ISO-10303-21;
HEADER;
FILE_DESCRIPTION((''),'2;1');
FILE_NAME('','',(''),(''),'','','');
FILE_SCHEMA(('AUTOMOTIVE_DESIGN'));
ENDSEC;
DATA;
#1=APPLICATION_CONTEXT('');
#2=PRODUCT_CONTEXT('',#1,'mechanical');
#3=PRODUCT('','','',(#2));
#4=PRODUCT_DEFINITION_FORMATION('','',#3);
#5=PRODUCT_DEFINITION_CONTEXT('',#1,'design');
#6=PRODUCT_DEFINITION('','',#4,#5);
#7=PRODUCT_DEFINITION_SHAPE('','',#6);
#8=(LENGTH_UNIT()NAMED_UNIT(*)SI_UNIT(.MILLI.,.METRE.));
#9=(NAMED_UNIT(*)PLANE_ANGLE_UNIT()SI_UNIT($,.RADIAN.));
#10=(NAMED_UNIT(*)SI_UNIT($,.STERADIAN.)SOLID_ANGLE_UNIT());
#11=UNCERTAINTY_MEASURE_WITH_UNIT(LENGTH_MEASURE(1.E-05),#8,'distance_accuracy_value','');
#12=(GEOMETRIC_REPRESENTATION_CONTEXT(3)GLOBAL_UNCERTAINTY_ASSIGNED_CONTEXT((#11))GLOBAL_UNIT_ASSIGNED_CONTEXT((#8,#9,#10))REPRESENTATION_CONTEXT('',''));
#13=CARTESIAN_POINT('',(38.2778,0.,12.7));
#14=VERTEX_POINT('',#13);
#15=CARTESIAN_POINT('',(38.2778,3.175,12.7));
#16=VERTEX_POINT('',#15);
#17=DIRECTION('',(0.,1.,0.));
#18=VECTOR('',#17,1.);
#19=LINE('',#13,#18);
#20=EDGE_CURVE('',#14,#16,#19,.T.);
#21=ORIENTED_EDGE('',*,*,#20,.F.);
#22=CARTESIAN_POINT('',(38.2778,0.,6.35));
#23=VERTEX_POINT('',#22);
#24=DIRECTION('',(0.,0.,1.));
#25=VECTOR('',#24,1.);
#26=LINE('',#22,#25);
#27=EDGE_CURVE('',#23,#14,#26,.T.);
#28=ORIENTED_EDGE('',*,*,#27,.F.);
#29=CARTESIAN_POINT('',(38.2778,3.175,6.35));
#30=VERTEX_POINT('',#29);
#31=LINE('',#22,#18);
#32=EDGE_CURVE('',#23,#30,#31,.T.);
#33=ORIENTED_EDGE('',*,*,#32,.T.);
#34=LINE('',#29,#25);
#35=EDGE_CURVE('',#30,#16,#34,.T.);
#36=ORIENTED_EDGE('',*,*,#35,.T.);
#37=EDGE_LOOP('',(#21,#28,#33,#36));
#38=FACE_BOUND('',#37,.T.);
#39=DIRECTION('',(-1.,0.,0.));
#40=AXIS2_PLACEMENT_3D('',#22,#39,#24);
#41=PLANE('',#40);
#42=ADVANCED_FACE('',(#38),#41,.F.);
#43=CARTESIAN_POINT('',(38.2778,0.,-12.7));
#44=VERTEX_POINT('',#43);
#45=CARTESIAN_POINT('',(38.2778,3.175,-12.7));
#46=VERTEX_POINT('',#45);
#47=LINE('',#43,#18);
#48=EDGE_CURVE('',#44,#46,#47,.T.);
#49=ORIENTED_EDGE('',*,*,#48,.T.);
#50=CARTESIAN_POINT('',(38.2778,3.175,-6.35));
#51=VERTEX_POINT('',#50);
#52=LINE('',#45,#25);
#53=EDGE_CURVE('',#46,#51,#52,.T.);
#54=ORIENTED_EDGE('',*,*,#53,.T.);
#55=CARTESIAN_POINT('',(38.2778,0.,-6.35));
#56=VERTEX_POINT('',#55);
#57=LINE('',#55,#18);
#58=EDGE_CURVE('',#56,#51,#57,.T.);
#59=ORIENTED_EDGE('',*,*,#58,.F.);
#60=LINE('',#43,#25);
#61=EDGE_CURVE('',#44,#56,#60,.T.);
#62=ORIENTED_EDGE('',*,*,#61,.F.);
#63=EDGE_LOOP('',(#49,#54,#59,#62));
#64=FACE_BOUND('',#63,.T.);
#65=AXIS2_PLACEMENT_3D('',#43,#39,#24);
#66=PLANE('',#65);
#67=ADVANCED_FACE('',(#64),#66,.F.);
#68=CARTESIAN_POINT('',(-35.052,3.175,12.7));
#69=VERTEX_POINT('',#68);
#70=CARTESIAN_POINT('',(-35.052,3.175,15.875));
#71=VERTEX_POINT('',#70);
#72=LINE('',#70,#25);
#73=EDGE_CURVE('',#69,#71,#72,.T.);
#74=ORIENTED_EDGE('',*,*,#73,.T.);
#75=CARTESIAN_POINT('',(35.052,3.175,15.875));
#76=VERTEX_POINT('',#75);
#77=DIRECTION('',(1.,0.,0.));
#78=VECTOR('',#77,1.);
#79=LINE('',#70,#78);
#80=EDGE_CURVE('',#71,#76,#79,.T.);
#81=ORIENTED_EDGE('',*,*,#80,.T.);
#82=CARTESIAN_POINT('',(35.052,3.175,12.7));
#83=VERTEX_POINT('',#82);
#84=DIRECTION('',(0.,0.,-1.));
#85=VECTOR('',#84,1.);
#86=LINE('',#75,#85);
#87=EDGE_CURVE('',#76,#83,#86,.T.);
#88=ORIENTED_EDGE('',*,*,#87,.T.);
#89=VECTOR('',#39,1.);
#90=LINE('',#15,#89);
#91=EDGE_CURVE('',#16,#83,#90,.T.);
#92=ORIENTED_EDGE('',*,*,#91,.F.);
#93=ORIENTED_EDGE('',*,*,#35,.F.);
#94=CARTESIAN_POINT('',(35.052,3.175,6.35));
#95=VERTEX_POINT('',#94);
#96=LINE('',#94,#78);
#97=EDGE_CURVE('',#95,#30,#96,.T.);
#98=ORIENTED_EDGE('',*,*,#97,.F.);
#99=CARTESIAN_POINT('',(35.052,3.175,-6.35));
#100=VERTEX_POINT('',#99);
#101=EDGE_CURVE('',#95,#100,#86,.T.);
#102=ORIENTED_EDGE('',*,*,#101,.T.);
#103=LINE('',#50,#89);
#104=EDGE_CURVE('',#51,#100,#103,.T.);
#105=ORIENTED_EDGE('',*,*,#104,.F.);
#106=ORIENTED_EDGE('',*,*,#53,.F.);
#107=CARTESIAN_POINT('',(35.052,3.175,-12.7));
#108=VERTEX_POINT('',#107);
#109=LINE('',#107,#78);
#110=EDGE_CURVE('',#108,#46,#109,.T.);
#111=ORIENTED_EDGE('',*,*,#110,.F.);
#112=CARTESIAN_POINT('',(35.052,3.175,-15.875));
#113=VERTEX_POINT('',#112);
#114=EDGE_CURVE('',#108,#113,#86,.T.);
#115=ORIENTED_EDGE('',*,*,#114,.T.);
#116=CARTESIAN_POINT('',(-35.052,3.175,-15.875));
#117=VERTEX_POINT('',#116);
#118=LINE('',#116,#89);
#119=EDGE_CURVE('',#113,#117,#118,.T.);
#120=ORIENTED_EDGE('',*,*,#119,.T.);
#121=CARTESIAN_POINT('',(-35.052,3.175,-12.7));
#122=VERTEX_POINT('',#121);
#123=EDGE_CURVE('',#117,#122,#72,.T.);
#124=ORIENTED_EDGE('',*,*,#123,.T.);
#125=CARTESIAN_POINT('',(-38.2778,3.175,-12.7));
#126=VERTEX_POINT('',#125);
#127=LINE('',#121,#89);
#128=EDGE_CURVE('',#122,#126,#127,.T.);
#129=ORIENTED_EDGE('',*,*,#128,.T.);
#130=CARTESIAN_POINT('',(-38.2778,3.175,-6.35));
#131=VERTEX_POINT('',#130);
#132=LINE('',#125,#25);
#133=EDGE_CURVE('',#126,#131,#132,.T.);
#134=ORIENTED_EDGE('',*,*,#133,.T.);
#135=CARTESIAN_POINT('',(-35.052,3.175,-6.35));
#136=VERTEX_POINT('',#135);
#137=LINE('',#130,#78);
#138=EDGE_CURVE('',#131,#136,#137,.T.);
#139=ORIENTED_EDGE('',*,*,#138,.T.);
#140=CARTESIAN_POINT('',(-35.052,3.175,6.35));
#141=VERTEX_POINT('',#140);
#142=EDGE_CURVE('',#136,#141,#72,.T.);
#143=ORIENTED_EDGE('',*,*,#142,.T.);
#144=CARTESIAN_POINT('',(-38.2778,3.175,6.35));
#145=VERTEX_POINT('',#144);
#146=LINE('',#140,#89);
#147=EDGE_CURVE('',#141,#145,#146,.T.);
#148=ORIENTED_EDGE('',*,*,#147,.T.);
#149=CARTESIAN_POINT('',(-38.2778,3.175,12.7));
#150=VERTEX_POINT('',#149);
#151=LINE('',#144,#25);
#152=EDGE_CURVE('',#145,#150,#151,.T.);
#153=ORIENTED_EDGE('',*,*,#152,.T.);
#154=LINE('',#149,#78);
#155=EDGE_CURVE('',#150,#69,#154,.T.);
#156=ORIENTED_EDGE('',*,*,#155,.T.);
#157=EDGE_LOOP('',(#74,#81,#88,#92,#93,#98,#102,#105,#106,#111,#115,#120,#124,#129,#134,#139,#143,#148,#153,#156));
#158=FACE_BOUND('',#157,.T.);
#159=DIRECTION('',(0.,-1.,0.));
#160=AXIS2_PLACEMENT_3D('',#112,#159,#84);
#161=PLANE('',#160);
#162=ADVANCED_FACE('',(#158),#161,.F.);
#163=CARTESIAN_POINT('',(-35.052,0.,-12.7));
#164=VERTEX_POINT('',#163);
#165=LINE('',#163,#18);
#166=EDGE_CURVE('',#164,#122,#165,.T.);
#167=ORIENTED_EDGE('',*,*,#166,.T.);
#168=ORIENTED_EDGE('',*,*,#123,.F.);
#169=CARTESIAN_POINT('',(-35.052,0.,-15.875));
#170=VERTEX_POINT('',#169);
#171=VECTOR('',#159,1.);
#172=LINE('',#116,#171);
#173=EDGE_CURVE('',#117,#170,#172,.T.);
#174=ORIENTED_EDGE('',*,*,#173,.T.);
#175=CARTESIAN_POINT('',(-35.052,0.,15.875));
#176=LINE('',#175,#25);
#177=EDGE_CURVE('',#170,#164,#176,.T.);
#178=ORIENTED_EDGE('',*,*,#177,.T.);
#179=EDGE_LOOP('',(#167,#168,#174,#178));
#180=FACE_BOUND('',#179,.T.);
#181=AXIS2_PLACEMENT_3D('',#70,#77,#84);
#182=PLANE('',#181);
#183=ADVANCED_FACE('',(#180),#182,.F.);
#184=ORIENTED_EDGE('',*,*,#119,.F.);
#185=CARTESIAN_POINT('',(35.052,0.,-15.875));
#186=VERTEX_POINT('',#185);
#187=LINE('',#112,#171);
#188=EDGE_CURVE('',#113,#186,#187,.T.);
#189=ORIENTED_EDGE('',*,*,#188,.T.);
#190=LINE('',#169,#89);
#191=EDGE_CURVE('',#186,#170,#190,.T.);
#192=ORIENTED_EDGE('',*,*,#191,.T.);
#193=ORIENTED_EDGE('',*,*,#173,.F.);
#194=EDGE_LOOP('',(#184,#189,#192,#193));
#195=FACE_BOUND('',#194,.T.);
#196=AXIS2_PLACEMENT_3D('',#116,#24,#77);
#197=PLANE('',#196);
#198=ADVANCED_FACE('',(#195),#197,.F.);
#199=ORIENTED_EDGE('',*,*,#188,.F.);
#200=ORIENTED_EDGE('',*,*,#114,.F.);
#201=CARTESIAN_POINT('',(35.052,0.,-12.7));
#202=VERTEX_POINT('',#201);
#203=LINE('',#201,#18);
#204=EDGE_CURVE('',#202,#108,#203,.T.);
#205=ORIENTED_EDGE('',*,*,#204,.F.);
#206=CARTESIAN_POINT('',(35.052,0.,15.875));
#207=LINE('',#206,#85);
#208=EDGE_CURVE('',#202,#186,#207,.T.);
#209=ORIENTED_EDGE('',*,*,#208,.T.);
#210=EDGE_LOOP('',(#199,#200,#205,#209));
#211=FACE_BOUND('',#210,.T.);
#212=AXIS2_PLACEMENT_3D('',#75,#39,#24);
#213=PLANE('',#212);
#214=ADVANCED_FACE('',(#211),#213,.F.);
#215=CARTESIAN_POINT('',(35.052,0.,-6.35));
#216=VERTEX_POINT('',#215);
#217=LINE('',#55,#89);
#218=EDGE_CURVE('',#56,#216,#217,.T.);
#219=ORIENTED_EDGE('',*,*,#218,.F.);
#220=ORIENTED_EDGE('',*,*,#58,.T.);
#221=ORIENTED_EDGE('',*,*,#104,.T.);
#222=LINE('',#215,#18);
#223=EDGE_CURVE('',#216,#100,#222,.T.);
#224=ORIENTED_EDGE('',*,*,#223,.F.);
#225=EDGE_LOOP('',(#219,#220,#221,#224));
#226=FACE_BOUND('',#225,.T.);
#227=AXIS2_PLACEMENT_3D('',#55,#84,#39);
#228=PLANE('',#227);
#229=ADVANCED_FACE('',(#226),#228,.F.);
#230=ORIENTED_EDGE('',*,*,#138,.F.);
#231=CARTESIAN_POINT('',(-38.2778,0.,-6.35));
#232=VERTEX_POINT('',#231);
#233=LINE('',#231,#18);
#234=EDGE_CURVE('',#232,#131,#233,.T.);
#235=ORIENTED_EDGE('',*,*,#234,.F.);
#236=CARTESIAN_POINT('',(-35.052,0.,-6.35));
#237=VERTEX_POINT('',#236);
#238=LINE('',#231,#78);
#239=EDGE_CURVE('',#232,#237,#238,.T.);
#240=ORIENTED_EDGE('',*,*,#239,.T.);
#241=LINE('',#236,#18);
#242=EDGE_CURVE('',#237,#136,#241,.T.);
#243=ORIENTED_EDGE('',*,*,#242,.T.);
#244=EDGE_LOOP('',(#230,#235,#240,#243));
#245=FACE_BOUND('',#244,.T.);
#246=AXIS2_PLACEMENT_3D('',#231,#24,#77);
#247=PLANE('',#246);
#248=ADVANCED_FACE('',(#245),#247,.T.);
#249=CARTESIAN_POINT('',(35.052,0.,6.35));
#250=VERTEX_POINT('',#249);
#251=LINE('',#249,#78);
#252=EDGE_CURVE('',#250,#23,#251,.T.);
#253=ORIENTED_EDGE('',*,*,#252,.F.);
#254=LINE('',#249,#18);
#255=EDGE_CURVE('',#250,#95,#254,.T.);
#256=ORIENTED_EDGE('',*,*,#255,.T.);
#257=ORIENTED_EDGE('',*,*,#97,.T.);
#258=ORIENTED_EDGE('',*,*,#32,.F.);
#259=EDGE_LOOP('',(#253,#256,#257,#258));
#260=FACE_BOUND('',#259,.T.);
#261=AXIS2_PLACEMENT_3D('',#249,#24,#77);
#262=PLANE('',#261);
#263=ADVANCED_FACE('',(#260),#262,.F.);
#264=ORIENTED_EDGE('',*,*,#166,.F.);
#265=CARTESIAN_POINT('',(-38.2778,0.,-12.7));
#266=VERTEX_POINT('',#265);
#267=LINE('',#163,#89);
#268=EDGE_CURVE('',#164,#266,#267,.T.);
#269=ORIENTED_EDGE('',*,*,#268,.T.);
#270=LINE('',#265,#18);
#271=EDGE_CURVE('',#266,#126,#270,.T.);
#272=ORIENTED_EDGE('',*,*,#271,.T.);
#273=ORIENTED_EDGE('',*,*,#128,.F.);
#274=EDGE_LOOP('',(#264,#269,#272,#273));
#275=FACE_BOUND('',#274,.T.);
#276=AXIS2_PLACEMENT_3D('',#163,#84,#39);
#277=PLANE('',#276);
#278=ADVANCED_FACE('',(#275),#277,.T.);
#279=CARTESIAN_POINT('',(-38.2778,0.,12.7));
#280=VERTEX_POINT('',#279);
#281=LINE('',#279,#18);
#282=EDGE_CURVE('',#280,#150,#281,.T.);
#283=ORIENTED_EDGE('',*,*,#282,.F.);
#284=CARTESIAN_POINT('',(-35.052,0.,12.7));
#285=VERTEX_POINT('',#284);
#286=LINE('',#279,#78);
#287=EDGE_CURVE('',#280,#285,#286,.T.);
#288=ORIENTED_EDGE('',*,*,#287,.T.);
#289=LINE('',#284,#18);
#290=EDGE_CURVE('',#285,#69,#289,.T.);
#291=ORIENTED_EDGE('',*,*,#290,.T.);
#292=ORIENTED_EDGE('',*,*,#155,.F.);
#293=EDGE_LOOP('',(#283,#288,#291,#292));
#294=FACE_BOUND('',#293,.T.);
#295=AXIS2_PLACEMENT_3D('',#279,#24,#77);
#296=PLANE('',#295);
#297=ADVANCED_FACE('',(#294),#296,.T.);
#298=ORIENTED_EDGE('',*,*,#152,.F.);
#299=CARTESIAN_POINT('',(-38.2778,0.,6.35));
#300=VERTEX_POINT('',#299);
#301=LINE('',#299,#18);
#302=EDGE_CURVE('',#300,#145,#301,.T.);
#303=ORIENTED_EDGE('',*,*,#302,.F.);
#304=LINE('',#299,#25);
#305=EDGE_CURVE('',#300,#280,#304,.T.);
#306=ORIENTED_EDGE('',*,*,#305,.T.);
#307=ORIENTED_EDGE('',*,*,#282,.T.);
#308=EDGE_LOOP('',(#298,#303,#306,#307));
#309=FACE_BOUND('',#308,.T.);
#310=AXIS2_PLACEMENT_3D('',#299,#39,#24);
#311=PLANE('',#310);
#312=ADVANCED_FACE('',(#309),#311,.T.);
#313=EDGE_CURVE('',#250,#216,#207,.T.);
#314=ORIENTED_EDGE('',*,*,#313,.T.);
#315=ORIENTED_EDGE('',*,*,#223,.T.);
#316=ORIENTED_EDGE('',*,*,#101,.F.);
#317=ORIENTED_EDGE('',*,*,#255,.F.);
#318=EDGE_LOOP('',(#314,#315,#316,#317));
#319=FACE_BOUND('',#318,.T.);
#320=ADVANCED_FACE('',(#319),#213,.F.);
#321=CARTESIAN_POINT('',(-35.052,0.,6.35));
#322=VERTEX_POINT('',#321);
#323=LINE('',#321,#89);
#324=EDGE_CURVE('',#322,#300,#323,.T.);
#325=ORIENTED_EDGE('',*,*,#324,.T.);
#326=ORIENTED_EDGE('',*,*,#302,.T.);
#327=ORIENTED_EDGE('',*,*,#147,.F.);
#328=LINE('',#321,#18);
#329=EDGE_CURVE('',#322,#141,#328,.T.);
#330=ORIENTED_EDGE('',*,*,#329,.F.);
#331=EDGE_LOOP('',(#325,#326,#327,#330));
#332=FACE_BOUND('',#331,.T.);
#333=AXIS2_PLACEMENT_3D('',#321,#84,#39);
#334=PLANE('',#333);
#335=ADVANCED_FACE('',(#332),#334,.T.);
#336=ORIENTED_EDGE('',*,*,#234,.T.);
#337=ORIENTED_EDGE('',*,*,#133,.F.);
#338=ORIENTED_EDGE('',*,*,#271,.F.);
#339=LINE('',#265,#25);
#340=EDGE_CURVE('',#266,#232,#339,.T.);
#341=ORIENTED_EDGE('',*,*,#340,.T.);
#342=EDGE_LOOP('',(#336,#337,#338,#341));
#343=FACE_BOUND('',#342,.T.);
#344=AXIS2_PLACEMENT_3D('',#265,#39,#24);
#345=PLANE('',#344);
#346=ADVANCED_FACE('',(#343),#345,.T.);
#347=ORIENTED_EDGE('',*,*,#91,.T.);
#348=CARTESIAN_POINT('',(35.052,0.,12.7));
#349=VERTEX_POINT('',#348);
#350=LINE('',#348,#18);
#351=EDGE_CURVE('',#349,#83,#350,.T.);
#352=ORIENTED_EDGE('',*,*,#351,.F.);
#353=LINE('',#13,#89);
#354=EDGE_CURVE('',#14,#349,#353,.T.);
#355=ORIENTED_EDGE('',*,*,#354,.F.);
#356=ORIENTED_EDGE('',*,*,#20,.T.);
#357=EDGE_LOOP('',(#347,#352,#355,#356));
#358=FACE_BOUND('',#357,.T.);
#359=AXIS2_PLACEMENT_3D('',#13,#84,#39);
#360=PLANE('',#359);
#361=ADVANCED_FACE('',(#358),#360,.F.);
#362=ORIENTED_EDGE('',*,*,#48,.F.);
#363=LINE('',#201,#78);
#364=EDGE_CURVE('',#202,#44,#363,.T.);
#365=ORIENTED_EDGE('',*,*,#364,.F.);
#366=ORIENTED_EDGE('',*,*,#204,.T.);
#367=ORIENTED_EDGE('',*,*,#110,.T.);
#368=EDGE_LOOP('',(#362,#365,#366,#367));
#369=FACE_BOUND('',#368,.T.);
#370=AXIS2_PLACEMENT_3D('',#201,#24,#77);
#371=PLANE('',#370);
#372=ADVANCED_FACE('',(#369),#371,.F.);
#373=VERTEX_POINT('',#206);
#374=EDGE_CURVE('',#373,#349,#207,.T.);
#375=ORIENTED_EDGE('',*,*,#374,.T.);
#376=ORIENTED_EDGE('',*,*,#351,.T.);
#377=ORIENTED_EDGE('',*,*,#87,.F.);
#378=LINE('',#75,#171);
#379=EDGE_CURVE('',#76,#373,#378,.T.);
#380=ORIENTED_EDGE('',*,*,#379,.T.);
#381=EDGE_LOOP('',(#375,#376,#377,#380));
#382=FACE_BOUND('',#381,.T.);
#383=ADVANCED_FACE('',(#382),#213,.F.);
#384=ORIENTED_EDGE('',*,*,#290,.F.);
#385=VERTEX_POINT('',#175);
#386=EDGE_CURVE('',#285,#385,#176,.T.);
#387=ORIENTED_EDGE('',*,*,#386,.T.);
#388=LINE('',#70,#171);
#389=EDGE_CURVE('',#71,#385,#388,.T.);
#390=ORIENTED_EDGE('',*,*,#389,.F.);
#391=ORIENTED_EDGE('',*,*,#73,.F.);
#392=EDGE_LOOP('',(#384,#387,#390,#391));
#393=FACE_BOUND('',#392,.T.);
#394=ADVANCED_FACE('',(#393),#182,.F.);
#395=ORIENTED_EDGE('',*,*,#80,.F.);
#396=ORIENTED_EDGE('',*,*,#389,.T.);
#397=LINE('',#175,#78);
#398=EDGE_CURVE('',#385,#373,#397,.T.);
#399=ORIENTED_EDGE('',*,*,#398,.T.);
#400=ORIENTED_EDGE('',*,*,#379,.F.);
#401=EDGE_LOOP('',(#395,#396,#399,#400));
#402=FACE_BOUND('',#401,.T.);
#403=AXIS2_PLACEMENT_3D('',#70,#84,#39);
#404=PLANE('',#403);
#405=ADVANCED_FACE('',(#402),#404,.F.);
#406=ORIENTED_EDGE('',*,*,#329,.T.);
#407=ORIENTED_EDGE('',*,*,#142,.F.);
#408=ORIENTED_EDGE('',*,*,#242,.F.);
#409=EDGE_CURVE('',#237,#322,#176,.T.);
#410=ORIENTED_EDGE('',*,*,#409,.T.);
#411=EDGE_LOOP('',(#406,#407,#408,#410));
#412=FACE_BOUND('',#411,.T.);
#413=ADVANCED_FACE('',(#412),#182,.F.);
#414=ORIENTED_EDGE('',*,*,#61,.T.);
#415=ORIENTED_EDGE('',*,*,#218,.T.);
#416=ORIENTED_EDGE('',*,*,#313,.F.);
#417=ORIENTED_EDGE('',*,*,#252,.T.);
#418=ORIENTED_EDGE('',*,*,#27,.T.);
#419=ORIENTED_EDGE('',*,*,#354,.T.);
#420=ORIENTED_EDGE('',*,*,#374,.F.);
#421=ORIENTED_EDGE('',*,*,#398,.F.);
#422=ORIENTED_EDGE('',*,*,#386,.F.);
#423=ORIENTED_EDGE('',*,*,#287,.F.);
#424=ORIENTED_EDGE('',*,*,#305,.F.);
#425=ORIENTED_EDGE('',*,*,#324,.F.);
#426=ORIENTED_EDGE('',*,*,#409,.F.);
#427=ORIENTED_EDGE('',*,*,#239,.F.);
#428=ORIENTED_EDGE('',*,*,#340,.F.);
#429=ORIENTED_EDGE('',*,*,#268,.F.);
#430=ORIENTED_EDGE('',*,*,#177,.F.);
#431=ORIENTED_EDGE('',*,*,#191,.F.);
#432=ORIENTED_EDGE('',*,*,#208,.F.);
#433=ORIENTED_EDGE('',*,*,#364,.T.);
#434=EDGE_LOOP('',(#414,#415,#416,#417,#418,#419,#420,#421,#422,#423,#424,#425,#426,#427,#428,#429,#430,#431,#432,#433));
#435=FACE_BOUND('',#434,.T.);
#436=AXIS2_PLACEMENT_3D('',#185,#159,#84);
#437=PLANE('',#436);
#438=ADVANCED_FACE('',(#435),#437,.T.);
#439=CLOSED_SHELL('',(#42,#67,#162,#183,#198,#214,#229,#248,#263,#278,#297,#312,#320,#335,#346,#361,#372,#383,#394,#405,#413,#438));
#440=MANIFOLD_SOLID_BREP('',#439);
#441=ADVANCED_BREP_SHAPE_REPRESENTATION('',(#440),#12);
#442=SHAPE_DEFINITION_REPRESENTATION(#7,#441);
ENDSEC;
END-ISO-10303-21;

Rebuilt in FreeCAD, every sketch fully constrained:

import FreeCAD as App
import Part
import Sketcher

V = App.Vector
Q = App.Units.Quantity

doc = App.newDocument("Part")
body = doc.addObject("PartDesign::Body", "Body")

# Sketch on XZ plane
sketch1 = body.newObject("Sketcher::SketchObject", "Sketch")
sketch1.AttachmentSupport = (doc.getObject("XZ_Plane"), [""])
sketch1.MapMode = "FlatFace"
sketch1.addGeometry([
    Part.LineSegment(V(-35, -16, 0), V(-35, 16, 0)),
    Part.LineSegment(V(-35, 16, 0), V(35, 16, 0)),
    Part.LineSegment(V(35, 16, 0), V(35, -16, 0)),
    Part.LineSegment(V(35, -16, 0), V(-35, -16, 0)),
], False)
sketch1.addConstraint([
    Sketcher.Constraint("Coincident", 0, 2, 1, 1),
    Sketcher.Constraint("Coincident", 1, 2, 2, 1),
    Sketcher.Constraint("Coincident", 2, 2, 3, 1),
    Sketcher.Constraint("Coincident", 3, 2, 0, 1),
    Sketcher.Constraint("Vertical", 0),
    Sketcher.Constraint("Horizontal", 1),
    Sketcher.Constraint("Vertical", 2),
    Sketcher.Constraint("Horizontal", 3),
    Sketcher.Constraint("Symmetric", 0, 2, 2, 2, -1, 1),
    Sketcher.Constraint("DistanceX", 1, 1, 1, 2, Q("2.76 in")),
    Sketcher.Constraint("DistanceY", 0, 1, 0, 2, Q("1.25 in")),
])
pad1 = body.newObject("PartDesign::Pad", "Pad")
pad1.Profile = sketch1
pad1.Length = Q("0.125 in")
pad1.Reversed = True

# Sketch on XZ plane
sketch2 = body.newObject("Sketcher::SketchObject", "Sketch001")
sketch2.AttachmentSupport = (doc.getObject("XZ_Plane"), [""])
sketch2.MapMode = "FlatFace"
sketch2.AttachmentOffset = App.Placement(V(0, 0, -0.125 * 25.4), App.Rotation())
sketch2.addGeometry([
    Part.LineSegment(V(-38.3, -12.7, 0), V(-38.3, -6.3, 0)),  # 0
    Part.LineSegment(V(-38.3, -6.3, 0), V(-35.1, -6.3, 0)),  # 1
    Part.LineSegment(V(-35.1, -6.3, 0), V(-35.1, -12.7, 0)),  # 2
    Part.LineSegment(V(-35.1, -12.7, 0), V(-38.3, -12.7, 0)),  # 3
    Part.LineSegment(V(-38.3, 6.3, 0), V(-38.3, 12.7, 0)),  # 4
    Part.LineSegment(V(-38.3, 12.7, 0), V(-35.1, 12.7, 0)),  # 5
    Part.LineSegment(V(-35.1, 12.7, 0), V(-35.1, 6.3, 0)),  # 6
    Part.LineSegment(V(-35.1, 6.3, 0), V(-38.3, 6.3, 0)),  # 7
], False)
sketch2.addConstraint([
    Sketcher.Constraint("Coincident", 0, 2, 1, 1),
    Sketcher.Constraint("Coincident", 1, 2, 2, 1),
    Sketcher.Constraint("Coincident", 2, 2, 3, 1),
    Sketcher.Constraint("Coincident", 3, 2, 0, 1),
    Sketcher.Constraint("Coincident", 4, 2, 5, 1),
    Sketcher.Constraint("Coincident", 5, 2, 6, 1),
    Sketcher.Constraint("Coincident", 6, 2, 7, 1),
    Sketcher.Constraint("Coincident", 7, 2, 4, 1),
    Sketcher.Constraint("Vertical", 0),
    Sketcher.Constraint("Horizontal", 1),
    Sketcher.Constraint("Vertical", 2),
    Sketcher.Constraint("Horizontal", 3),
    Sketcher.Constraint("Vertical", 4),
    Sketcher.Constraint("Horizontal", 5),
    Sketcher.Constraint("Vertical", 6),
    Sketcher.Constraint("Horizontal", 7),
    Sketcher.Constraint("Symmetric", 3, 2, 4, 2, -1),
    Sketcher.Constraint("Symmetric", 1, 2, 6, 2, -1),
    Sketcher.Constraint("DistanceY", 3, 2, 4, 2, Q("1 in")),
    Sketcher.Constraint("DistanceY", 0, 1, 0, 2, Q("0.25 in")),
    Sketcher.Constraint("DistanceX", 1, 1, 1, 2, Q("0.127 in")),
    Sketcher.Constraint("DistanceX", 1, 2, -1, 1, Q("1.38 in")),
])
pad2 = body.newObject("PartDesign::Pad", "Pad001")
pad2.Profile = sketch2
pad2.Length = Q("0.125 in")
doc.recompute()

mirrored = body.newObject("PartDesign::Mirrored", "Mirrored")
mirrored.Originals = [pad2]
mirrored.MirrorPlane = (doc.getObject("YZ_Plane"), [""])
body.Tip = mirrored

doc.recompute()
